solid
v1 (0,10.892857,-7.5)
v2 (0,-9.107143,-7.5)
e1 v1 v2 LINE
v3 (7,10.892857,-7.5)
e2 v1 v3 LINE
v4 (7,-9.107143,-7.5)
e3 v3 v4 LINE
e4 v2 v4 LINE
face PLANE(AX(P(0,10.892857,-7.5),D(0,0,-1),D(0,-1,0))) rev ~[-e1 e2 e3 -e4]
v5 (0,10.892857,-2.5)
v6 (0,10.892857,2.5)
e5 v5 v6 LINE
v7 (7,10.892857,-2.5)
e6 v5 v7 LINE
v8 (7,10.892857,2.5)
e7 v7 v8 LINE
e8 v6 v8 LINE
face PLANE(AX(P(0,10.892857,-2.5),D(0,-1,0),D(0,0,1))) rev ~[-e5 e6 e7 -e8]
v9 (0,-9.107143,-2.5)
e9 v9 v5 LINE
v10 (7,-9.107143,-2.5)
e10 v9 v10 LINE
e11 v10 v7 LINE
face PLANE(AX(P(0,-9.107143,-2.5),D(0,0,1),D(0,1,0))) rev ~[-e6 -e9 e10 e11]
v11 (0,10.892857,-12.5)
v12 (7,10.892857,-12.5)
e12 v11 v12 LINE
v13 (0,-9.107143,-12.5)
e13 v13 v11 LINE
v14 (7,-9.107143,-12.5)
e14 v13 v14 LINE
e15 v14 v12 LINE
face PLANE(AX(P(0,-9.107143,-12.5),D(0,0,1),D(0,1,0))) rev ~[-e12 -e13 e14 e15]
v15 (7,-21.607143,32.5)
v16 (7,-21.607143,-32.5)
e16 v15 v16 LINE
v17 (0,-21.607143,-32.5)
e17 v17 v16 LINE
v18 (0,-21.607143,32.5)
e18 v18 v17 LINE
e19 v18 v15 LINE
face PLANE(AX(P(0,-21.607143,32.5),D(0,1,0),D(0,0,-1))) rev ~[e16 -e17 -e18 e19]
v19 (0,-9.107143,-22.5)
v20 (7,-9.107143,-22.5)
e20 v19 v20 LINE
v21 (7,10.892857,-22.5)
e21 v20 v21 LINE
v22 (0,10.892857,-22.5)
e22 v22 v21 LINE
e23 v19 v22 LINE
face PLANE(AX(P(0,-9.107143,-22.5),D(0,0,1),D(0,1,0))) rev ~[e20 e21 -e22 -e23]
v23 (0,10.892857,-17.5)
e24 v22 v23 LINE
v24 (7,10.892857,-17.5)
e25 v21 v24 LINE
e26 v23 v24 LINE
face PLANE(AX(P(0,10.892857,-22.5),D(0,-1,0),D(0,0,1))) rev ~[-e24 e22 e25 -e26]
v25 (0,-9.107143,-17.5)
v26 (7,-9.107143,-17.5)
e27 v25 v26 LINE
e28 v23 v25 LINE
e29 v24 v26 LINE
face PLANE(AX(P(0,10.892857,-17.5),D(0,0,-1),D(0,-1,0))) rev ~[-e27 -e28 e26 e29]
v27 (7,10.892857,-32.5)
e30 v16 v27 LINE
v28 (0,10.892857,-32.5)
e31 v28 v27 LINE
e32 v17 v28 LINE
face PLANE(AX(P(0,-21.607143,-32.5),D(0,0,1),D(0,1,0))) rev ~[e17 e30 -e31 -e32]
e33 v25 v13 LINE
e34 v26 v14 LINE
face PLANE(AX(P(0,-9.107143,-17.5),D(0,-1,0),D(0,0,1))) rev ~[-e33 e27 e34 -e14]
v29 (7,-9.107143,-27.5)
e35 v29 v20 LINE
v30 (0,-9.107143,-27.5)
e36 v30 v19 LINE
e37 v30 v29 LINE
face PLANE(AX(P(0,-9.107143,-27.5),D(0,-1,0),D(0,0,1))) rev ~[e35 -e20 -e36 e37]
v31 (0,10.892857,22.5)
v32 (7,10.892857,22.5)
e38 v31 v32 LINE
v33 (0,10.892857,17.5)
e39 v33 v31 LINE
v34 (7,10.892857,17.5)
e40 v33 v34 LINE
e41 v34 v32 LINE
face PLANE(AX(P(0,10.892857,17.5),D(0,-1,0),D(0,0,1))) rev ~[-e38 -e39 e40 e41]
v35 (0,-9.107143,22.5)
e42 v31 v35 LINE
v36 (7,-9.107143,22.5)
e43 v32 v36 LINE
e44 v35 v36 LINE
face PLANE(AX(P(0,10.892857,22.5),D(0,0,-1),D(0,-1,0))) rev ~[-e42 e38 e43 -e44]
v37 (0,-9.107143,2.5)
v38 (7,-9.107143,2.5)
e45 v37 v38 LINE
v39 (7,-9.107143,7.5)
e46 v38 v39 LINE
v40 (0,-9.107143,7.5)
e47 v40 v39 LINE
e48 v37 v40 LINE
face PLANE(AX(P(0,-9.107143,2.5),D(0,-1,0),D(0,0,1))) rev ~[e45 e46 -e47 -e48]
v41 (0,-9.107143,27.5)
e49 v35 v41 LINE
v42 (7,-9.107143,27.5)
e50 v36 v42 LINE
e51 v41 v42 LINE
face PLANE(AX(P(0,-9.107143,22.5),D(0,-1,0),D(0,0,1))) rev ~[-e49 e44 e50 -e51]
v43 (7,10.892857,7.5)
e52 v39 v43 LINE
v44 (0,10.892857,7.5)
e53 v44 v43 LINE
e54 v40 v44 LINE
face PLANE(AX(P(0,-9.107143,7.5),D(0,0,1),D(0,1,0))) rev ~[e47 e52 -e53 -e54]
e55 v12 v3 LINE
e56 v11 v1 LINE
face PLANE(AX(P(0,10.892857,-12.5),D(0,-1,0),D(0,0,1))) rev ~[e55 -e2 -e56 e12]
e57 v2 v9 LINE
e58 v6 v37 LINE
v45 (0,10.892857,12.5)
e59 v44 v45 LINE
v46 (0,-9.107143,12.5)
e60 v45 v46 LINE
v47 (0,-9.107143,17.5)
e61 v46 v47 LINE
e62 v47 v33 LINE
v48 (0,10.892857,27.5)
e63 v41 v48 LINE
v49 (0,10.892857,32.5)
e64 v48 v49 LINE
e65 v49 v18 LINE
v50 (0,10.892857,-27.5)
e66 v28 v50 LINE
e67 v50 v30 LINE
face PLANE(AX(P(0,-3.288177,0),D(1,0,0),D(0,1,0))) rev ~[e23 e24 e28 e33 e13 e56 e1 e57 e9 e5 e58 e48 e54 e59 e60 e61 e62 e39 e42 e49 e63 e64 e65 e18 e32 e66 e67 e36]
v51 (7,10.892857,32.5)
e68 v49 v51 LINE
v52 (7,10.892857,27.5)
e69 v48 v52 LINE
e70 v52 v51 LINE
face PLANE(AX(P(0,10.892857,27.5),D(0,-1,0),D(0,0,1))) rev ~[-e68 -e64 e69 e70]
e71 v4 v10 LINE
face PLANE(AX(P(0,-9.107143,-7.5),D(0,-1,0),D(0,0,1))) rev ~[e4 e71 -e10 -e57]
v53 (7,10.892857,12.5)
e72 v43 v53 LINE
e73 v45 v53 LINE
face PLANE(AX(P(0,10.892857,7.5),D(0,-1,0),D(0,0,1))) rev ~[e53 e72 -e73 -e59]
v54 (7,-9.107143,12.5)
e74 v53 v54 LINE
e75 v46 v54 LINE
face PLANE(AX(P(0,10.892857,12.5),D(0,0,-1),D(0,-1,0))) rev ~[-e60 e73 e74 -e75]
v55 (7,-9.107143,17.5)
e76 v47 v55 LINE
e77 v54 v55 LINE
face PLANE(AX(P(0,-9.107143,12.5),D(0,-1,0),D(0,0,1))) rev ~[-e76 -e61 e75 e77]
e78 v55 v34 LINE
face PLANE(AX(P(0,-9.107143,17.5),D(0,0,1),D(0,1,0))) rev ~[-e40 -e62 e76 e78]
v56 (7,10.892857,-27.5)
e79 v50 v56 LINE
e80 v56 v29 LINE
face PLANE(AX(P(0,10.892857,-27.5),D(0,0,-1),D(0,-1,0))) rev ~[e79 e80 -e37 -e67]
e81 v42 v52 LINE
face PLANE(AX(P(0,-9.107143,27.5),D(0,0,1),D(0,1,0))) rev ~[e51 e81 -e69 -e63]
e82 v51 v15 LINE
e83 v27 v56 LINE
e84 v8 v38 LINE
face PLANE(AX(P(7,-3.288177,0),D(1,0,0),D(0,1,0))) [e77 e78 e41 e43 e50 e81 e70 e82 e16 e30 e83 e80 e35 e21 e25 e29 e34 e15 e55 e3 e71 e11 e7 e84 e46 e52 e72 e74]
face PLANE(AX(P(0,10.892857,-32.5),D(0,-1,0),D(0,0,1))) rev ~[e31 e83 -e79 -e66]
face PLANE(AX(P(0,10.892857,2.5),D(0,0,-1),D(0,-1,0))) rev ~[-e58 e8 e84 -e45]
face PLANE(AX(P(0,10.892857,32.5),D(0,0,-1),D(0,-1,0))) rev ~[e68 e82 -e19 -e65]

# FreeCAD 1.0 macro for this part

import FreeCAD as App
import Part
import Sketcher

V = App.Vector
Q = App.Units.Quantity

doc = App.newDocument("Part")
body = doc.addObject("PartDesign::Body", "Body")

# Sketch on YZ plane
sketch1 = body.newObject("Sketcher::SketchObject", "Sketch")
sketch1.AttachmentSupport = (doc.getObject("YZ_Plane"), [""])
sketch1.MapMode = "FlatFace"
sketch1.addGeometry([
    Part.LineSegment(V(11, 32, 0), V(-22, 32, 0)),  # 0
    Part.LineSegment(V(-22, 32, 0), V(-22, -32, 0)),  # 1
    Part.LineSegment(V(-22, -32, 0), V(11, -32, 0)),  # 2
    Part.LineSegment(V(11, -32, 0), V(11, -28, 0)),  # 3
    Part.LineSegment(V(11, -28, 0), V(-9, -28, 0)),  # 4
    Part.LineSegment(V(-9, -28, 0), V(-9, -22, 0)),  # 5
    Part.LineSegment(V(-9, -22, 0), V(11, -22, 0)),  # 6
    Part.LineSegment(V(11, -22, 0), V(11, -18, 0)),  # 7
    Part.LineSegment(V(11, -18, 0), V(-9, -18, 0)),  # 8
    Part.LineSegment(V(-9, -18, 0), V(-9, -12, 0)),  # 9
    Part.LineSegment(V(-9, -12, 0), V(11, -12, 0)),  # 10
    Part.LineSegment(V(11, -12, 0), V(11, -8, 0)),  # 11
    Part.LineSegment(V(11, -8, 0), V(-9, -8, 0)),  # 12
    Part.LineSegment(V(-9, -8, 0), V(-9, -2, 0)),  # 13
    Part.LineSegment(V(-9, -2, 0), V(11, -2, 0)),  # 14
    Part.LineSegment(V(11, -2, 0), V(11, 2, 0)),  # 15
    Part.LineSegment(V(11, 2, 0), V(-9, 2, 0)),  # 16
    Part.LineSegment(V(-9, 2, 0), V(-9, 8, 0)),  # 17
    Part.LineSegment(V(-9, 8, 0), V(11, 8, 0)),  # 18
    Part.LineSegment(V(11, 8, 0), V(11, 12, 0)),  # 19
    Part.LineSegment(V(11, 12, 0), V(-9, 12, 0)),  # 20
    Part.LineSegment(V(-9, 12, 0), V(-9, 18, 0)),  # 21
    Part.LineSegment(V(-9, 18, 0), V(11, 18, 0)),  # 22
    Part.LineSegment(V(11, 18, 0), V(11, 22, 0)),  # 23
    Part.LineSegment(V(11, 22, 0), V(-9, 22, 0)),  # 24
    Part.LineSegment(V(-9, 22, 0), V(-9, 28, 0)),  # 25
    Part.LineSegment(V(-9, 28, 0), V(11, 28, 0)),  # 26
    Part.LineSegment(V(11, 28, 0), V(11, 32, 0)),  # 27
], False)
sketch1.addConstraint([
    Sketcher.Constraint("Coincident", 0, 2, 1, 1),
    Sketcher.Constraint("Coincident", 1, 2, 2, 1),
    Sketcher.Constraint("Coincident", 2, 2, 3, 1),
    Sketcher.Constraint("Coincident", 3, 2, 4, 1),
    Sketcher.Constraint("Coincident", 4, 2, 5, 1),
    Sketcher.Constraint("Coincident", 5, 2, 6, 1),
    Sketcher.Constraint("Coincident", 6, 2, 7, 1),
    Sketcher.Constraint("Coincident", 7, 2, 8, 1),
    Sketcher.Constraint("Coincident", 8, 2, 9, 1),
    Sketcher.Constraint("Coincident", 9, 2, 10, 1),
    Sketcher.Constraint("Coincident", 10, 2, 11, 1),
    Sketcher.Constraint("Coincident", 11, 2, 12, 1),
    Sketcher.Constraint("Coincident", 12, 2, 13, 1),
    Sketcher.Constraint("Coincident", 13, 2, 14, 1),
    Sketcher.Constraint("Coincident", 14, 2, 15, 1),
    Sketcher.Constraint("Coincident", 15, 2, 16, 1),
    Sketcher.Constraint("Coincident", 16, 2, 17, 1),
    Sketcher.Constraint("Coincident", 17, 2, 18, 1),
    Sketcher.Constraint("Coincident", 18, 2, 19, 1),
    Sketcher.Constraint("Coincident", 19, 2, 20, 1),
    Sketcher.Constraint("Coincident", 20, 2, 21, 1),
    Sketcher.Constraint("Coincident", 21, 2, 22, 1),
    Sketcher.Constraint("Coincident", 22, 2, 23, 1),
    Sketcher.Constraint("Coincident", 23, 2, 24, 1),
    Sketcher.Constraint("Coincident", 24, 2, 25, 1),
    Sketcher.Constraint("Coincident", 25, 2, 26, 1),
    Sketcher.Constraint("Coincident", 26, 2, 27, 1),
    Sketcher.Constraint("Coincident", 27, 2, 0, 1),
    Sketcher.Constraint("Horizontal", 0),
    Sketcher.Constraint("Vertical", 1),
    Sketcher.Constraint("Horizontal", 2),
    Sketcher.Constraint("Vertical", 3),
    Sketcher.Constraint("Horizontal", 4),
    Sketcher.Constraint("Vertical", 5),
    Sketcher.Constraint("Horizontal", 6),
    Sketcher.Constraint("Vertical", 7),
    Sketcher.Constraint("Horizontal", 8),
    Sketcher.Constraint("Vertical", 9),
    Sketcher.Constraint("Horizontal", 10),
    Sketcher.Constraint("Vertical", 11),
    Sketcher.Constraint("Horizontal", 12),
    Sketcher.Constraint("Vertical", 13),
    Sketcher.Constraint("Horizontal", 14),
    Sketcher.Constraint("Vertical", 15),
    Sketcher.Constraint("Horizontal", 16),
    Sketcher.Constraint("Vertical", 17),
    Sketcher.Constraint("Horizontal", 18),
    Sketcher.Constraint("Vertical", 19),
    Sketcher.Constraint("Horizontal", 20),
    Sketcher.Constraint("Vertical", 21),
    Sketcher.Constraint("Horizontal", 22),
    Sketcher.Constraint("Vertical", 23),
    Sketcher.Constraint("Horizontal", 24),
    Sketcher.Constraint("Vertical", 25),
    Sketcher.Constraint("Horizontal", 26),
    Sketcher.Constraint("Vertical", 27),
    Sketcher.Constraint("Symmetric", 13, 2, 16, 2, -1),
    Sketcher.Constraint("Symmetric", 11, 2, 18, 2, -1),
    Sketcher.Constraint("Symmetric", 9, 2, 20, 2, -1),
    Sketcher.Constraint("Symmetric", 7, 2, 22, 2, -1),
    Sketcher.Constraint("Symmetric", 5, 2, 24, 2, -1),
    Sketcher.Constraint("Symmetric", 3, 2, 26, 2, -1),
    Sketcher.Constraint("Vertical", 3, 2, 6, 2),
    Sketcher.Constraint("Vertical", 5, 2, 8, 2),
    Sketcher.Constraint("Vertical", 7, 2, 10, 2),
    Sketcher.Constraint("Vertical", 9, 2, 12, 2),
    Sketcher.Constraint("Vertical", 11, 2, 14, 2),
    Sketcher.Constraint("Equal", 3, 5),
    Sketcher.Constraint("Equal", 5, 7),
    Sketcher.Constraint("Equal", 7, 9),
    Sketcher.Constraint("Equal", 9, 11),
    Sketcher.Constraint("Equal", 11, 13),
    Sketcher.Constraint("Equal", 13, 15),
    Sketcher.Constraint("Equal", 25, 27),
    Sketcher.Constraint("DistanceX", 4, 2, 4, 1, Q("20 mm")),
    Sketcher.Constraint("DistanceY", 1, 2, 1, 1, Q("65 mm")),
    Sketcher.Constraint("DistanceX", 0, 2, 0, 1, Q("32.5 mm")),
    Sketcher.Constraint("DistanceX", 0, 2, -1, 1, Q("21.607143 mm")),
])
pad1 = body.newObject("PartDesign::Pad", "Pad")
pad1.Profile = sketch1
pad1.Length = 7

doc.recompute()
